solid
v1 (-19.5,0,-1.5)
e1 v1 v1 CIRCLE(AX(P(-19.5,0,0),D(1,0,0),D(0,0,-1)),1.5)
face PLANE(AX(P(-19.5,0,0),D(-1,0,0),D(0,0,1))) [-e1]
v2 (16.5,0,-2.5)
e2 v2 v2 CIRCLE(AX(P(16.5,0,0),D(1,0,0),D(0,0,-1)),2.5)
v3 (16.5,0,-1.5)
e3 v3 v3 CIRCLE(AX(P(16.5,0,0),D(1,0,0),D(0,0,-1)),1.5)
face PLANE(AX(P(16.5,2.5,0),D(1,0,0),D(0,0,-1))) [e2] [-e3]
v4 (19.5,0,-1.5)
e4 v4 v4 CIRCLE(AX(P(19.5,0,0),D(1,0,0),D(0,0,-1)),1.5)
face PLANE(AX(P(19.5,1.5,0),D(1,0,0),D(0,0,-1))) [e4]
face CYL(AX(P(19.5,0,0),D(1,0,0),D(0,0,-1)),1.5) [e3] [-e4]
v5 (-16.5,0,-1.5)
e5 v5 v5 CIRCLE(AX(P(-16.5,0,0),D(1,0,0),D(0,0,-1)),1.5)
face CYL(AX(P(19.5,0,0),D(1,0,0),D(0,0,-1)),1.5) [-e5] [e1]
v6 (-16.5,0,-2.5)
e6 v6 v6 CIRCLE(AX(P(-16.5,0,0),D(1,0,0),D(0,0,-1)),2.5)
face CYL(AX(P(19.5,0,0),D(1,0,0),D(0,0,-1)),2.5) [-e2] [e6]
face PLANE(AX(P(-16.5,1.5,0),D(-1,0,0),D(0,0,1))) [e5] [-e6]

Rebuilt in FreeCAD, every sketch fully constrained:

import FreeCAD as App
import Part
import Sketcher
from FreeCAD import Vector


def add_polygon(sketch, points):
    """Adds a closed chain of lines whose ends are joined by coincident constraints."""
    first, n = sketch.GeometryCount, len(points)
    for a, b in zip(points, points[1:] + points[:1]):
        sketch.addGeometry(Part.LineSegment(App.Vector(*a, 0), App.Vector(*b, 0)), False)
    for i in range(n):
        sketch.addConstraint(Sketcher.Constraint("Coincident", first + i, 2, first + (i + 1) % n, 1))

doc = App.newDocument("Part")
body = doc.addObject("PartDesign::Body", "Body")

sketch1 = body.newObject("Sketcher::SketchObject", "Sketch")
sketch1.AttachmentSupport = (doc.getObject("XY_Plane"), [""])
sketch1.MapMode = "FlatFace"
add_polygon(sketch1, [(-19.5, 1.5), (-19.5, 0), (19.5, 0), (19.5, 1.5), (16.5, 1.5), (16.5, 2.5), (-16.5, 2.5), (-16.5, 1.5)])
sketch1.addConstraint([
    Sketcher.Constraint("Vertical", 0),
    Sketcher.Constraint("Horizontal", 1),
    Sketcher.Constraint("Vertical", 2),
    Sketcher.Constraint("Horizontal", 3),
    Sketcher.Constraint("Vertical", 4),
    Sketcher.Constraint("Horizontal", 5),
    Sketcher.Constraint("Vertical", 6),
    Sketcher.Constraint("Horizontal", 7),
    Sketcher.Constraint("Symmetric", 0, 2, 1, 2, -1, 1),
    Sketcher.Constraint("Symmetric", 3, 2, 6, 2, -2),
    Sketcher.Constraint("DistanceX", 1, 1, 1, 2, 39.0),
    Sketcher.Constraint("DistanceX", 3, 2, 3, 1, 3.0),
    Sketcher.Constraint("DistanceY", 4, 1, 4, 2, 1.0),
    Sketcher.Constraint("DistanceY", 0, 2, 0, 1, 1.5),
])
revolution = body.newObject("PartDesign::Revolution", "Revolution")
revolution.Profile = sketch1
revolution.ReferenceAxis = (sketch1, ["H_Axis"])
revolution.Angle = 360

doc.recompute()
